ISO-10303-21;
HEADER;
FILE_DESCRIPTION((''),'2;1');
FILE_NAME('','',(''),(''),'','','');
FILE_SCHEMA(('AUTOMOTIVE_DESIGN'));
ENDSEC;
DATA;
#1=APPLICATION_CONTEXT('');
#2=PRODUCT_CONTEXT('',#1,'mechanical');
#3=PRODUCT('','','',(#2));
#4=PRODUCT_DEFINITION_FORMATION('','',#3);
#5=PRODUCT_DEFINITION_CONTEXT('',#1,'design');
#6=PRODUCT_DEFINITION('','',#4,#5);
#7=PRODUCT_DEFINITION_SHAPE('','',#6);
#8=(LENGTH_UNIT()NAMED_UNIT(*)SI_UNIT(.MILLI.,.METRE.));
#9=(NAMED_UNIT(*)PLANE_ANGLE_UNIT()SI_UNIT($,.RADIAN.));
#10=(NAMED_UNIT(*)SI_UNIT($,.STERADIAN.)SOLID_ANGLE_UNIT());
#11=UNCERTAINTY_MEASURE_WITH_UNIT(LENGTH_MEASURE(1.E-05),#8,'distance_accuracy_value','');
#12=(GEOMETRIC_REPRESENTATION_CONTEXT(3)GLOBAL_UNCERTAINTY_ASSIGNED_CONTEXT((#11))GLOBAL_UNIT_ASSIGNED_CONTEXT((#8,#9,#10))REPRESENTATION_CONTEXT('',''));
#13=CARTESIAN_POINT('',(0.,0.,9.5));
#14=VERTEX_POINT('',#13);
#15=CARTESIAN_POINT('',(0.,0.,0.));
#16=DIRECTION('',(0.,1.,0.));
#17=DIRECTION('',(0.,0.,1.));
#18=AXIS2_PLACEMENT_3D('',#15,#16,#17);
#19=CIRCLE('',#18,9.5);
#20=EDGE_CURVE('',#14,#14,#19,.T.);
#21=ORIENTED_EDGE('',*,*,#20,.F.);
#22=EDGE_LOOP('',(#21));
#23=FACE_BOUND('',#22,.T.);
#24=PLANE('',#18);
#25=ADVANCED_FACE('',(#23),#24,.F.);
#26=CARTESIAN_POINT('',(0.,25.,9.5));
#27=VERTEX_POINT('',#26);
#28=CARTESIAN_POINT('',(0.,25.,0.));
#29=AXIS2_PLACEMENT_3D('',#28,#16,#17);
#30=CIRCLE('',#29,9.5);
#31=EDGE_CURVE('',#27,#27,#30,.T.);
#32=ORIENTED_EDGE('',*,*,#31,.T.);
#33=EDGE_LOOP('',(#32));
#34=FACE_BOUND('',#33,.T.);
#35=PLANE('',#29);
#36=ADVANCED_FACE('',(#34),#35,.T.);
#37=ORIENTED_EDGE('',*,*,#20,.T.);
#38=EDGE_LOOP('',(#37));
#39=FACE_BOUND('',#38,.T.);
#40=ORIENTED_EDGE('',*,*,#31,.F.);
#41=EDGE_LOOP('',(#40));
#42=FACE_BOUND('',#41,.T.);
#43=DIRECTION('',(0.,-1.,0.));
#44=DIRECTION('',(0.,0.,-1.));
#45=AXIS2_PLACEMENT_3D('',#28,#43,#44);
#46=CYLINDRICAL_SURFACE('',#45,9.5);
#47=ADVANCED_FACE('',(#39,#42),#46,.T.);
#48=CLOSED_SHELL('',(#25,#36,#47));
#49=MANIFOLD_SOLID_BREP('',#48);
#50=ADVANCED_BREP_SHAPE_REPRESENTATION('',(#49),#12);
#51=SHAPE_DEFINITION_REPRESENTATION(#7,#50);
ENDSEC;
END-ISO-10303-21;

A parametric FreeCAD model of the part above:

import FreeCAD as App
import Part
import Sketcher
from FreeCAD import Vector
Q = App.Units.Quantity

doc = App.newDocument("Part")
body = doc.addObject("PartDesign::Body", "Body")

# Sketch on XZ plane
sketch1 = body.newObject("Sketcher::SketchObject", "Sketch")
sketch1.AttachmentSupport = (doc.getObject("XZ_Plane"), [""])
sketch1.MapMode = "FlatFace"
sketch1.addGeometry(Part.Circle(Vector(0, 0, 0), Vector(0, 0, 1), 10), False)
sketch1.addConstraint(Sketcher.Constraint("Coincident", 0, 3, -1, 1))
sketch1.addConstraint(Sketcher.Constraint("Diameter", 0, Q("19 mm")))
pad1 = body.newObject("PartDesign::Pad", "Pad")
pad1.Profile = sketch1
pad1.Length = 25
pad1.Reversed = True

doc.recompute()
